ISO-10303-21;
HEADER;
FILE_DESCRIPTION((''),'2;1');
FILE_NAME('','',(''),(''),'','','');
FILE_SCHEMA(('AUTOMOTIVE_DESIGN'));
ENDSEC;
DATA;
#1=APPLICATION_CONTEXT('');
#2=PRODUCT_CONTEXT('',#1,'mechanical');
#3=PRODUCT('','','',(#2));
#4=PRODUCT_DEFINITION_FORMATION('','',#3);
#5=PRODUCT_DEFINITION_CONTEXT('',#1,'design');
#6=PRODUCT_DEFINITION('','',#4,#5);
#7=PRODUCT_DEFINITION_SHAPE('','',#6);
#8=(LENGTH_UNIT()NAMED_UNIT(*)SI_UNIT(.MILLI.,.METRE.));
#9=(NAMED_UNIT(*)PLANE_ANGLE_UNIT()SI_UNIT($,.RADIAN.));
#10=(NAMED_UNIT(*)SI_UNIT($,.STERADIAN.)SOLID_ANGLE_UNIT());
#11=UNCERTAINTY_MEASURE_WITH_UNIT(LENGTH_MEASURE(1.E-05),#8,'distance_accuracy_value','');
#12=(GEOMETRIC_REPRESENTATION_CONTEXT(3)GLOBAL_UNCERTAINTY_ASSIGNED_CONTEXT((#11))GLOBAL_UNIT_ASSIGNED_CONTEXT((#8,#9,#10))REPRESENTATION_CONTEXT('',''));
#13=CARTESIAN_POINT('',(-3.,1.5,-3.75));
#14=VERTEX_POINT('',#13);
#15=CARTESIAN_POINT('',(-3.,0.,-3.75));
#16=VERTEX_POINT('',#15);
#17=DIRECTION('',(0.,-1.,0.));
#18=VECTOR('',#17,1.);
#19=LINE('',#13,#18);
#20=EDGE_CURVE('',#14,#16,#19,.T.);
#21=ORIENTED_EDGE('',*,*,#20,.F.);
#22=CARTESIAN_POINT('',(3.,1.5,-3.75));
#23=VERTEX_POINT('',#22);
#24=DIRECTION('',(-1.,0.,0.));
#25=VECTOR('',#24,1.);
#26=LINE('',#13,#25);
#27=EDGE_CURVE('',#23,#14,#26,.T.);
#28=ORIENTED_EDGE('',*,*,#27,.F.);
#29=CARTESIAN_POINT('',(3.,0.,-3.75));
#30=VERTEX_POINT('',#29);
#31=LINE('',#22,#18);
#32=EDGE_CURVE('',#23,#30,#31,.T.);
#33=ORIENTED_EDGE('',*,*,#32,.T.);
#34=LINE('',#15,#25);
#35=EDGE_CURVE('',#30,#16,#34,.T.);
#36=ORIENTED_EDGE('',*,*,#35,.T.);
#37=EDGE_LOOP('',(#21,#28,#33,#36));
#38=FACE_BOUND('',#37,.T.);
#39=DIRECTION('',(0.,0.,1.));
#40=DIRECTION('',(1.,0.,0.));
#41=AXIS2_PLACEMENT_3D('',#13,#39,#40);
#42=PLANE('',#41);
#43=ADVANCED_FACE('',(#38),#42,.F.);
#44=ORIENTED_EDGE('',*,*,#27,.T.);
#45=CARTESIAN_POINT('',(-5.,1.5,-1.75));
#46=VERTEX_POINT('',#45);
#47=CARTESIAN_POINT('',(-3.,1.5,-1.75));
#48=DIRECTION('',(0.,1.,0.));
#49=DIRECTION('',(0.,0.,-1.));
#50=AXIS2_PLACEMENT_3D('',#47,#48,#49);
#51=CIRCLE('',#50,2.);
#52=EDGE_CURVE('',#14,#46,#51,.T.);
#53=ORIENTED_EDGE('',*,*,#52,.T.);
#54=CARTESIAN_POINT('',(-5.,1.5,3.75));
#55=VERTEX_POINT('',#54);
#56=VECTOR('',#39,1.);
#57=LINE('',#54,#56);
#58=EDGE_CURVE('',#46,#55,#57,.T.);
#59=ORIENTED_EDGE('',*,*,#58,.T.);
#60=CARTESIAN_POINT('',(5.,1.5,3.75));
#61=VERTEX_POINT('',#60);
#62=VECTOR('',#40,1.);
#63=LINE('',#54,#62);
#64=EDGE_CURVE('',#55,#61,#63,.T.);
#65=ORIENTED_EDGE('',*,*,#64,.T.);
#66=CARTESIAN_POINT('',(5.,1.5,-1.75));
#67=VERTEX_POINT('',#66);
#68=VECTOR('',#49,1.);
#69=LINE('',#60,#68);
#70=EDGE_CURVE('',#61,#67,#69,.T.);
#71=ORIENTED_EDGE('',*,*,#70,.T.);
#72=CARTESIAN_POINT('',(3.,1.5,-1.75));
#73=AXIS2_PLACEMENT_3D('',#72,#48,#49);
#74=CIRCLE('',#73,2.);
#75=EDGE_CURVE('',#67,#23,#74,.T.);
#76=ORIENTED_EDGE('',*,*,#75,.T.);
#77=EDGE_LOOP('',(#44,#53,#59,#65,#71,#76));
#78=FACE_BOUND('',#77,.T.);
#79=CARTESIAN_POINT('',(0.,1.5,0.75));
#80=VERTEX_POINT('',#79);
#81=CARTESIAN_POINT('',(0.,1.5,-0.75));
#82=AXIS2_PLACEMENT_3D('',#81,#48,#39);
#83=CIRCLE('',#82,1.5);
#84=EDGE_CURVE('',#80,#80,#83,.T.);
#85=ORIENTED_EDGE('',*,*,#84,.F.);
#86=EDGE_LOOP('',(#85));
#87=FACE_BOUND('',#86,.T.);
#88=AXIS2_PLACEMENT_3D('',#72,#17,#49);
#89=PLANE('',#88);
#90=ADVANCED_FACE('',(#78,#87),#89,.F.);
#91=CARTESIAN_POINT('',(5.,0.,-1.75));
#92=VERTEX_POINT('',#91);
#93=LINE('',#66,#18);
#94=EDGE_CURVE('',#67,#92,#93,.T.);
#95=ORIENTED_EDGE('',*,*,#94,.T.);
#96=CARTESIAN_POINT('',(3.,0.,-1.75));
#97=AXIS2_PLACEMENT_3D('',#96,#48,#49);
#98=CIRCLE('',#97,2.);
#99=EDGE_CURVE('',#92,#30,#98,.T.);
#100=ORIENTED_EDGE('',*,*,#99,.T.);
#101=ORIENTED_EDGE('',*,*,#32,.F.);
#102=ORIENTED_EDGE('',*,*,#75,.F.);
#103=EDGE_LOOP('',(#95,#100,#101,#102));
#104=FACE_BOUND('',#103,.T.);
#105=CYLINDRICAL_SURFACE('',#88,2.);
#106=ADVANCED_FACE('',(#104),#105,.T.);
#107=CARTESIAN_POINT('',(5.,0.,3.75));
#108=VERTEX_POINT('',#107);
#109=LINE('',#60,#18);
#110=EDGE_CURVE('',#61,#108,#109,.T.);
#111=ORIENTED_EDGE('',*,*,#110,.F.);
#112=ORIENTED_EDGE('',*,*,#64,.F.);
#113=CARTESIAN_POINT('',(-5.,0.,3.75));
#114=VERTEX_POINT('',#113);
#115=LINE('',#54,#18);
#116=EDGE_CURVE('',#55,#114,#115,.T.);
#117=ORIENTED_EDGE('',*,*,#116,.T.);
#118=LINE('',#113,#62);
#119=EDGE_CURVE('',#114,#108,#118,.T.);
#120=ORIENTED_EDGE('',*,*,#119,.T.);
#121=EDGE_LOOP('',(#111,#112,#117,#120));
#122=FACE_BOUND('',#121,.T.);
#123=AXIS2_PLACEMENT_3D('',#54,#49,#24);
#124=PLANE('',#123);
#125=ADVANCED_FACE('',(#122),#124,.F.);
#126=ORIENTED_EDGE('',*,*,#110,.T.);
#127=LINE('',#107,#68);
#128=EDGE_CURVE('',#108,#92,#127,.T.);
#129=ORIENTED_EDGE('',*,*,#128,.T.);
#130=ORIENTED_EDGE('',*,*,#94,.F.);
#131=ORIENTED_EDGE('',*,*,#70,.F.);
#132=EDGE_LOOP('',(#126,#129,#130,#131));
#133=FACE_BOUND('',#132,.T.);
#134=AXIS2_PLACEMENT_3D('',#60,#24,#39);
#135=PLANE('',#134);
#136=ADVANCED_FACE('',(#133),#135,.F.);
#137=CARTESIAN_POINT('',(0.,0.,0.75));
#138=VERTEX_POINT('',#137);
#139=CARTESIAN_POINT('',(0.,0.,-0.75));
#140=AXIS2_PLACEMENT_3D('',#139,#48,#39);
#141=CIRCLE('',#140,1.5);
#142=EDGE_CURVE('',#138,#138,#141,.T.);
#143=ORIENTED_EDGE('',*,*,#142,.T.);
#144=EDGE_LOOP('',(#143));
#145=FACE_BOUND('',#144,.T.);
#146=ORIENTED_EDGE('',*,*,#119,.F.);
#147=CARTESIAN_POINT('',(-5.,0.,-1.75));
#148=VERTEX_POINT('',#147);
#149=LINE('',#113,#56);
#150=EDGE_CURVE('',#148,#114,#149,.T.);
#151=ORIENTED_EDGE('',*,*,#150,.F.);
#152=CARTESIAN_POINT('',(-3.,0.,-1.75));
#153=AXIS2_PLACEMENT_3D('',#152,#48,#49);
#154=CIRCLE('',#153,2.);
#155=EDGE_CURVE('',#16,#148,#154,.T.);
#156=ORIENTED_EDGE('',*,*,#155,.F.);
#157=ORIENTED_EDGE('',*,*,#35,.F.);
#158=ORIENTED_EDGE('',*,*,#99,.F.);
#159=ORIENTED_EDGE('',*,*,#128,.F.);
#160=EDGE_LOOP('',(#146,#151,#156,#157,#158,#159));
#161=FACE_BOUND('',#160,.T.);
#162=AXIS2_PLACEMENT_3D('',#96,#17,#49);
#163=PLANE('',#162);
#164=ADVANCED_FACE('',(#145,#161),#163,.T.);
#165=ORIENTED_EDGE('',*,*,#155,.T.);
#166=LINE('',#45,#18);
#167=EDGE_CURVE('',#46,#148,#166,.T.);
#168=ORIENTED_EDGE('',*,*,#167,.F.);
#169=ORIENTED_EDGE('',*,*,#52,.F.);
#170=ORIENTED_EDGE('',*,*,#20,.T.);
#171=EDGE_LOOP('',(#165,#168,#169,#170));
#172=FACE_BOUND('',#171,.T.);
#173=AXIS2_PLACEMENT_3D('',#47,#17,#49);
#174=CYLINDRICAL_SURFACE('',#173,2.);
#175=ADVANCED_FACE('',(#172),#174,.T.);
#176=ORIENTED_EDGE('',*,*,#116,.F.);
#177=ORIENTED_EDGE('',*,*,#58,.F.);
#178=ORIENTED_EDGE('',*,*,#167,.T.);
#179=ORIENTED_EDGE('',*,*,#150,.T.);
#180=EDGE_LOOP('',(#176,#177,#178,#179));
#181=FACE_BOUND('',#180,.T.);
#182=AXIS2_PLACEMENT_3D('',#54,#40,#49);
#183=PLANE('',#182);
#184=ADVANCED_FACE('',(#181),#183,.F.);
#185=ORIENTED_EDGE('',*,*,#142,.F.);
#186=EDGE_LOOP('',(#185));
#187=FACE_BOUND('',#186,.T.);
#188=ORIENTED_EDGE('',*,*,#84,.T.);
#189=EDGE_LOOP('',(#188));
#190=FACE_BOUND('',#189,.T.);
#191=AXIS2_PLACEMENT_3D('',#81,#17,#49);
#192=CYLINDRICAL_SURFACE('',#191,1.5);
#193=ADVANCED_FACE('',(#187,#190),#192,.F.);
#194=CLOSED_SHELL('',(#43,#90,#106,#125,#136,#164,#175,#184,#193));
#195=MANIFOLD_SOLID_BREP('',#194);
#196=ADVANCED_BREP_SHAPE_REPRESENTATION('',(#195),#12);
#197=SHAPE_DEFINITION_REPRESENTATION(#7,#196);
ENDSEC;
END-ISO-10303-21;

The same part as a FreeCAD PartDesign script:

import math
import FreeCAD as App
import Part
import Sketcher
Q = App.Units.Quantity

doc = App.newDocument("Part")
body = doc.addObject("PartDesign::Body", "Body")

# Sketch on XZ plane
sketch1 = body.newObject("Sketcher::SketchObject", "Sketch")
sketch1.AttachmentSupport = (doc.getObject("XZ_Plane"), [""])
sketch1.MapMode = "FlatFace"
sketch1.addGeometry([
    Part.LineSegment(App.Vector(-5, -1.8, 0), App.Vector(-5, 3.8, 0)),  # 0
    Part.LineSegment(App.Vector(-5, 3.8, 0), App.Vector(5, 3.8, 0)),  # 1
    Part.LineSegment(App.Vector(5, 3.8, 0), App.Vector(5, -1.8, 0)),  # 2
    Part.ArcOfCircle(Part.Circle(App.Vector(3, -1.7, 0), App.Vector(0, 0, 1), 2), math.radians(-90), math.radians(0)),  # 3
    Part.LineSegment(App.Vector(3, -3.8, 0), App.Vector(-3, -3.8, 0)),  # 4
    Part.ArcOfCircle(Part.Circle(App.Vector(-3, -1.7, 0), App.Vector(0, 0, 1), 2), math.radians(-180), math.radians(-90)),  # 5
    Part.Circle(App.Vector(0, -0.8, 0), App.Vector(0, 0, 1), 1.5),  # 6
], False)
sketch1.addConstraint([
    Sketcher.Constraint("Coincident", 0, 2, 1, 1),
    Sketcher.Constraint("Coincident", 1, 2, 2, 1),
    Sketcher.Constraint("Tangent", 2, 2, 3, 2),
    Sketcher.Constraint("Tangent", 3, 1, 4, 1),
    Sketcher.Constraint("Tangent", 4, 2, 5, 2),
    Sketcher.Constraint("Tangent", 5, 1, 0, 1),
    Sketcher.Constraint("Vertical", 0),
    Sketcher.Constraint("Horizontal", 1),
    Sketcher.Constraint("Vertical", 2),
    Sketcher.Constraint("Horizontal", 4),
    Sketcher.Constraint("Equal", 3, 5),
    Sketcher.Constraint("PointOnObject", 6, 3, -2),
    Sketcher.Constraint("Diameter", 6, Q("3 mm")),
    Sketcher.Constraint("Radius", 3, Q("2 mm")),
    Sketcher.Constraint("DistanceX", 1, 1, 1, 2, Q("10 mm")),
    Sketcher.Constraint("DistanceY", 0, 1, 0, 2, Q("5.5 mm")),
    Sketcher.Constraint("DistanceX", -1, 1, 3, 3, Q("3 mm")),
    Sketcher.Constraint("DistanceY", 3, 3, 6, 3, Q("1 mm")),
    Sketcher.Constraint("DistanceY", 3, 3, -1, 1, Q("1.75 mm")),
])
pad1 = body.newObject("PartDesign::Pad", "Pad")
pad1.Profile = sketch1
pad1.Length = 1.5
pad1.Reversed = True

doc.recompute()
